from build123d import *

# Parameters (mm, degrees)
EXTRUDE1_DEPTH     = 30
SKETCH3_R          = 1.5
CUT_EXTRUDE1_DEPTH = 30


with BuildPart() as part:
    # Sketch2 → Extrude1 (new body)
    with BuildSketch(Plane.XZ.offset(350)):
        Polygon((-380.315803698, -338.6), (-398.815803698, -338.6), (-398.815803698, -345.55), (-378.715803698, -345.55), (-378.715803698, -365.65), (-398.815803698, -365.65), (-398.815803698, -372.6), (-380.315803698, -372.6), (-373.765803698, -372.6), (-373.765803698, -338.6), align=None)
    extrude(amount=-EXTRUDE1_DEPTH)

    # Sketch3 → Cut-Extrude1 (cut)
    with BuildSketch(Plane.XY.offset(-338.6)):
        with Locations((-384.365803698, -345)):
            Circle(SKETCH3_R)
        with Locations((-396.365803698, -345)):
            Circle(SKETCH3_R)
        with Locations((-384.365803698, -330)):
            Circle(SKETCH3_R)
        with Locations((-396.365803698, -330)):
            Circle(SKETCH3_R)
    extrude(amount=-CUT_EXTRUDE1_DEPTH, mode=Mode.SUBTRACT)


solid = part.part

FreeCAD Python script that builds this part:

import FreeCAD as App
import Part
import Sketcher
from FreeCAD import Vector

doc = App.newDocument("Part")
body = doc.addObject("PartDesign::Body", "Body")

sketch1 = body.newObject("Sketcher::SketchObject", "Sketch")
sketch1.AttachmentSupport = (doc.getObject("XZ_Plane"), [""])
sketch1.MapMode = "FlatFace"
sketch1.AttachmentOffset = App.Placement(Vector(0, 0, 350), App.Rotation())
sketch1.addGeometry([
    Part.LineSegment(Vector(-399, -339, 0), Vector(-399, -346, 0)),
    Part.LineSegment(Vector(-399, -346, 0), Vector(-379, -346, 0)),
    Part.LineSegment(Vector(-379, -346, 0), Vector(-379, -366, 0)),
    Part.LineSegment(Vector(-379, -366, 0), Vector(-399, -366, 0)),
    Part.LineSegment(Vector(-399, -366, 0), Vector(-399, -373, 0)),
    Part.LineSegment(Vector(-399, -373, 0), Vector(-374, -373, 0)),
    Part.LineSegment(Vector(-374, -373, 0), Vector(-374, -339, 0)),
    Part.LineSegment(Vector(-374, -339, 0), Vector(-399, -339, 0)),
], False)
sketch1.addConstraint([
    Sketcher.Constraint("Coincident", 0, 2, 1, 1),
    Sketcher.Constraint("Coincident", 1, 2, 2, 1),
    Sketcher.Constraint("Coincident", 2, 2, 3, 1),
    Sketcher.Constraint("Coincident", 3, 2, 4, 1),
    Sketcher.Constraint("Coincident", 4, 2, 5, 1),
    Sketcher.Constraint("Coincident", 5, 2, 6, 1),
    Sketcher.Constraint("Coincident", 6, 2, 7, 1),
    Sketcher.Constraint("Coincident", 7, 2, 0, 1),
    Sketcher.Constraint("Vertical", 0),
    Sketcher.Constraint("Horizontal", 1),
    Sketcher.Constraint("Vertical", 2),
    Sketcher.Constraint("Horizontal", 3),
    Sketcher.Constraint("Vertical", 4),
    Sketcher.Constraint("Horizontal", 5),
    Sketcher.Constraint("Vertical", 6),
    Sketcher.Constraint("Horizontal", 7),
    Sketcher.Constraint("Vertical", 0, 2, 3, 2),
    Sketcher.Constraint("Equal", 3, 2),
    Sketcher.Constraint("Equal", 0, 4),
    Sketcher.Constraint("DistanceY", 6, 1, 6, 2, 34.0),
    Sketcher.Constraint("DistanceX", 1, 1, 1, 2, 20.1),
    Sketcher.Constraint("DistanceX", 5, 1, 5, 2, 25.05),
    Sketcher.Constraint("DistanceY", 4, 2, -1, 1, 372.6),
    Sketcher.Constraint("DistanceX", 0, 2, -1, 1, 398.815804),
])
pad1 = body.newObject("PartDesign::Pad", "Pad")
pad1.Profile = sketch1
pad1.Length = 30
pad1.Reversed = True

sketch2 = body.newObject("Sketcher::SketchObject", "Sketch001")
sketch2.AttachmentSupport = (doc.getObject("XY_Plane"), [""])
sketch2.MapMode = "FlatFace"
sketch2.AttachmentOffset = App.Placement(Vector(0, 0, -338.6), App.Rotation())
sketch2.addGeometry([
    Part.Circle(Vector(-384.4, -345, 0), Vector(0, 0, 1), 1.5),
    Part.Circle(Vector(-396.4, -345, 0), Vector(0, 0, 1), 1.5),
    Part.Circle(Vector(-384.4, -330, 0), Vector(0, 0, 1), 1.5),
    Part.Circle(Vector(-396.4, -330, 0), Vector(0, 0, 1), 1.5),
], False)
sketch2.addConstraint([
    Sketcher.Constraint("Equal", 0, 1),
    Sketcher.Constraint("Equal", 1, 2),
    Sketcher.Constraint("Equal", 2, 3),
    Sketcher.Constraint("Horizontal", 0, 3, 1, 3),
    Sketcher.Constraint("Horizontal", 2, 3, 3, 3),
    Sketcher.Constraint("Vertical", 0, 3, 2, 3),
    Sketcher.Constraint("Vertical", 1, 3, 3, 3),
    Sketcher.Constraint("Diameter", 0, 3.0),
    Sketcher.Constraint("DistanceY", 0, 3, -1, 1, 345.0),
    Sketcher.Constraint("DistanceY", 2, 3, -1, 1, 330.0),
    Sketcher.Constraint("DistanceX", 1, 3, 0, 3, 12.0),
    Sketcher.Constraint("DistanceX", 0, 3, -1, 1, 384.365804),
])
pocket1 = body.newObject("PartDesign::Pocket", "Pocket")
pocket1.Profile = sketch2
pocket1.Length = 30

doc.recompute()
